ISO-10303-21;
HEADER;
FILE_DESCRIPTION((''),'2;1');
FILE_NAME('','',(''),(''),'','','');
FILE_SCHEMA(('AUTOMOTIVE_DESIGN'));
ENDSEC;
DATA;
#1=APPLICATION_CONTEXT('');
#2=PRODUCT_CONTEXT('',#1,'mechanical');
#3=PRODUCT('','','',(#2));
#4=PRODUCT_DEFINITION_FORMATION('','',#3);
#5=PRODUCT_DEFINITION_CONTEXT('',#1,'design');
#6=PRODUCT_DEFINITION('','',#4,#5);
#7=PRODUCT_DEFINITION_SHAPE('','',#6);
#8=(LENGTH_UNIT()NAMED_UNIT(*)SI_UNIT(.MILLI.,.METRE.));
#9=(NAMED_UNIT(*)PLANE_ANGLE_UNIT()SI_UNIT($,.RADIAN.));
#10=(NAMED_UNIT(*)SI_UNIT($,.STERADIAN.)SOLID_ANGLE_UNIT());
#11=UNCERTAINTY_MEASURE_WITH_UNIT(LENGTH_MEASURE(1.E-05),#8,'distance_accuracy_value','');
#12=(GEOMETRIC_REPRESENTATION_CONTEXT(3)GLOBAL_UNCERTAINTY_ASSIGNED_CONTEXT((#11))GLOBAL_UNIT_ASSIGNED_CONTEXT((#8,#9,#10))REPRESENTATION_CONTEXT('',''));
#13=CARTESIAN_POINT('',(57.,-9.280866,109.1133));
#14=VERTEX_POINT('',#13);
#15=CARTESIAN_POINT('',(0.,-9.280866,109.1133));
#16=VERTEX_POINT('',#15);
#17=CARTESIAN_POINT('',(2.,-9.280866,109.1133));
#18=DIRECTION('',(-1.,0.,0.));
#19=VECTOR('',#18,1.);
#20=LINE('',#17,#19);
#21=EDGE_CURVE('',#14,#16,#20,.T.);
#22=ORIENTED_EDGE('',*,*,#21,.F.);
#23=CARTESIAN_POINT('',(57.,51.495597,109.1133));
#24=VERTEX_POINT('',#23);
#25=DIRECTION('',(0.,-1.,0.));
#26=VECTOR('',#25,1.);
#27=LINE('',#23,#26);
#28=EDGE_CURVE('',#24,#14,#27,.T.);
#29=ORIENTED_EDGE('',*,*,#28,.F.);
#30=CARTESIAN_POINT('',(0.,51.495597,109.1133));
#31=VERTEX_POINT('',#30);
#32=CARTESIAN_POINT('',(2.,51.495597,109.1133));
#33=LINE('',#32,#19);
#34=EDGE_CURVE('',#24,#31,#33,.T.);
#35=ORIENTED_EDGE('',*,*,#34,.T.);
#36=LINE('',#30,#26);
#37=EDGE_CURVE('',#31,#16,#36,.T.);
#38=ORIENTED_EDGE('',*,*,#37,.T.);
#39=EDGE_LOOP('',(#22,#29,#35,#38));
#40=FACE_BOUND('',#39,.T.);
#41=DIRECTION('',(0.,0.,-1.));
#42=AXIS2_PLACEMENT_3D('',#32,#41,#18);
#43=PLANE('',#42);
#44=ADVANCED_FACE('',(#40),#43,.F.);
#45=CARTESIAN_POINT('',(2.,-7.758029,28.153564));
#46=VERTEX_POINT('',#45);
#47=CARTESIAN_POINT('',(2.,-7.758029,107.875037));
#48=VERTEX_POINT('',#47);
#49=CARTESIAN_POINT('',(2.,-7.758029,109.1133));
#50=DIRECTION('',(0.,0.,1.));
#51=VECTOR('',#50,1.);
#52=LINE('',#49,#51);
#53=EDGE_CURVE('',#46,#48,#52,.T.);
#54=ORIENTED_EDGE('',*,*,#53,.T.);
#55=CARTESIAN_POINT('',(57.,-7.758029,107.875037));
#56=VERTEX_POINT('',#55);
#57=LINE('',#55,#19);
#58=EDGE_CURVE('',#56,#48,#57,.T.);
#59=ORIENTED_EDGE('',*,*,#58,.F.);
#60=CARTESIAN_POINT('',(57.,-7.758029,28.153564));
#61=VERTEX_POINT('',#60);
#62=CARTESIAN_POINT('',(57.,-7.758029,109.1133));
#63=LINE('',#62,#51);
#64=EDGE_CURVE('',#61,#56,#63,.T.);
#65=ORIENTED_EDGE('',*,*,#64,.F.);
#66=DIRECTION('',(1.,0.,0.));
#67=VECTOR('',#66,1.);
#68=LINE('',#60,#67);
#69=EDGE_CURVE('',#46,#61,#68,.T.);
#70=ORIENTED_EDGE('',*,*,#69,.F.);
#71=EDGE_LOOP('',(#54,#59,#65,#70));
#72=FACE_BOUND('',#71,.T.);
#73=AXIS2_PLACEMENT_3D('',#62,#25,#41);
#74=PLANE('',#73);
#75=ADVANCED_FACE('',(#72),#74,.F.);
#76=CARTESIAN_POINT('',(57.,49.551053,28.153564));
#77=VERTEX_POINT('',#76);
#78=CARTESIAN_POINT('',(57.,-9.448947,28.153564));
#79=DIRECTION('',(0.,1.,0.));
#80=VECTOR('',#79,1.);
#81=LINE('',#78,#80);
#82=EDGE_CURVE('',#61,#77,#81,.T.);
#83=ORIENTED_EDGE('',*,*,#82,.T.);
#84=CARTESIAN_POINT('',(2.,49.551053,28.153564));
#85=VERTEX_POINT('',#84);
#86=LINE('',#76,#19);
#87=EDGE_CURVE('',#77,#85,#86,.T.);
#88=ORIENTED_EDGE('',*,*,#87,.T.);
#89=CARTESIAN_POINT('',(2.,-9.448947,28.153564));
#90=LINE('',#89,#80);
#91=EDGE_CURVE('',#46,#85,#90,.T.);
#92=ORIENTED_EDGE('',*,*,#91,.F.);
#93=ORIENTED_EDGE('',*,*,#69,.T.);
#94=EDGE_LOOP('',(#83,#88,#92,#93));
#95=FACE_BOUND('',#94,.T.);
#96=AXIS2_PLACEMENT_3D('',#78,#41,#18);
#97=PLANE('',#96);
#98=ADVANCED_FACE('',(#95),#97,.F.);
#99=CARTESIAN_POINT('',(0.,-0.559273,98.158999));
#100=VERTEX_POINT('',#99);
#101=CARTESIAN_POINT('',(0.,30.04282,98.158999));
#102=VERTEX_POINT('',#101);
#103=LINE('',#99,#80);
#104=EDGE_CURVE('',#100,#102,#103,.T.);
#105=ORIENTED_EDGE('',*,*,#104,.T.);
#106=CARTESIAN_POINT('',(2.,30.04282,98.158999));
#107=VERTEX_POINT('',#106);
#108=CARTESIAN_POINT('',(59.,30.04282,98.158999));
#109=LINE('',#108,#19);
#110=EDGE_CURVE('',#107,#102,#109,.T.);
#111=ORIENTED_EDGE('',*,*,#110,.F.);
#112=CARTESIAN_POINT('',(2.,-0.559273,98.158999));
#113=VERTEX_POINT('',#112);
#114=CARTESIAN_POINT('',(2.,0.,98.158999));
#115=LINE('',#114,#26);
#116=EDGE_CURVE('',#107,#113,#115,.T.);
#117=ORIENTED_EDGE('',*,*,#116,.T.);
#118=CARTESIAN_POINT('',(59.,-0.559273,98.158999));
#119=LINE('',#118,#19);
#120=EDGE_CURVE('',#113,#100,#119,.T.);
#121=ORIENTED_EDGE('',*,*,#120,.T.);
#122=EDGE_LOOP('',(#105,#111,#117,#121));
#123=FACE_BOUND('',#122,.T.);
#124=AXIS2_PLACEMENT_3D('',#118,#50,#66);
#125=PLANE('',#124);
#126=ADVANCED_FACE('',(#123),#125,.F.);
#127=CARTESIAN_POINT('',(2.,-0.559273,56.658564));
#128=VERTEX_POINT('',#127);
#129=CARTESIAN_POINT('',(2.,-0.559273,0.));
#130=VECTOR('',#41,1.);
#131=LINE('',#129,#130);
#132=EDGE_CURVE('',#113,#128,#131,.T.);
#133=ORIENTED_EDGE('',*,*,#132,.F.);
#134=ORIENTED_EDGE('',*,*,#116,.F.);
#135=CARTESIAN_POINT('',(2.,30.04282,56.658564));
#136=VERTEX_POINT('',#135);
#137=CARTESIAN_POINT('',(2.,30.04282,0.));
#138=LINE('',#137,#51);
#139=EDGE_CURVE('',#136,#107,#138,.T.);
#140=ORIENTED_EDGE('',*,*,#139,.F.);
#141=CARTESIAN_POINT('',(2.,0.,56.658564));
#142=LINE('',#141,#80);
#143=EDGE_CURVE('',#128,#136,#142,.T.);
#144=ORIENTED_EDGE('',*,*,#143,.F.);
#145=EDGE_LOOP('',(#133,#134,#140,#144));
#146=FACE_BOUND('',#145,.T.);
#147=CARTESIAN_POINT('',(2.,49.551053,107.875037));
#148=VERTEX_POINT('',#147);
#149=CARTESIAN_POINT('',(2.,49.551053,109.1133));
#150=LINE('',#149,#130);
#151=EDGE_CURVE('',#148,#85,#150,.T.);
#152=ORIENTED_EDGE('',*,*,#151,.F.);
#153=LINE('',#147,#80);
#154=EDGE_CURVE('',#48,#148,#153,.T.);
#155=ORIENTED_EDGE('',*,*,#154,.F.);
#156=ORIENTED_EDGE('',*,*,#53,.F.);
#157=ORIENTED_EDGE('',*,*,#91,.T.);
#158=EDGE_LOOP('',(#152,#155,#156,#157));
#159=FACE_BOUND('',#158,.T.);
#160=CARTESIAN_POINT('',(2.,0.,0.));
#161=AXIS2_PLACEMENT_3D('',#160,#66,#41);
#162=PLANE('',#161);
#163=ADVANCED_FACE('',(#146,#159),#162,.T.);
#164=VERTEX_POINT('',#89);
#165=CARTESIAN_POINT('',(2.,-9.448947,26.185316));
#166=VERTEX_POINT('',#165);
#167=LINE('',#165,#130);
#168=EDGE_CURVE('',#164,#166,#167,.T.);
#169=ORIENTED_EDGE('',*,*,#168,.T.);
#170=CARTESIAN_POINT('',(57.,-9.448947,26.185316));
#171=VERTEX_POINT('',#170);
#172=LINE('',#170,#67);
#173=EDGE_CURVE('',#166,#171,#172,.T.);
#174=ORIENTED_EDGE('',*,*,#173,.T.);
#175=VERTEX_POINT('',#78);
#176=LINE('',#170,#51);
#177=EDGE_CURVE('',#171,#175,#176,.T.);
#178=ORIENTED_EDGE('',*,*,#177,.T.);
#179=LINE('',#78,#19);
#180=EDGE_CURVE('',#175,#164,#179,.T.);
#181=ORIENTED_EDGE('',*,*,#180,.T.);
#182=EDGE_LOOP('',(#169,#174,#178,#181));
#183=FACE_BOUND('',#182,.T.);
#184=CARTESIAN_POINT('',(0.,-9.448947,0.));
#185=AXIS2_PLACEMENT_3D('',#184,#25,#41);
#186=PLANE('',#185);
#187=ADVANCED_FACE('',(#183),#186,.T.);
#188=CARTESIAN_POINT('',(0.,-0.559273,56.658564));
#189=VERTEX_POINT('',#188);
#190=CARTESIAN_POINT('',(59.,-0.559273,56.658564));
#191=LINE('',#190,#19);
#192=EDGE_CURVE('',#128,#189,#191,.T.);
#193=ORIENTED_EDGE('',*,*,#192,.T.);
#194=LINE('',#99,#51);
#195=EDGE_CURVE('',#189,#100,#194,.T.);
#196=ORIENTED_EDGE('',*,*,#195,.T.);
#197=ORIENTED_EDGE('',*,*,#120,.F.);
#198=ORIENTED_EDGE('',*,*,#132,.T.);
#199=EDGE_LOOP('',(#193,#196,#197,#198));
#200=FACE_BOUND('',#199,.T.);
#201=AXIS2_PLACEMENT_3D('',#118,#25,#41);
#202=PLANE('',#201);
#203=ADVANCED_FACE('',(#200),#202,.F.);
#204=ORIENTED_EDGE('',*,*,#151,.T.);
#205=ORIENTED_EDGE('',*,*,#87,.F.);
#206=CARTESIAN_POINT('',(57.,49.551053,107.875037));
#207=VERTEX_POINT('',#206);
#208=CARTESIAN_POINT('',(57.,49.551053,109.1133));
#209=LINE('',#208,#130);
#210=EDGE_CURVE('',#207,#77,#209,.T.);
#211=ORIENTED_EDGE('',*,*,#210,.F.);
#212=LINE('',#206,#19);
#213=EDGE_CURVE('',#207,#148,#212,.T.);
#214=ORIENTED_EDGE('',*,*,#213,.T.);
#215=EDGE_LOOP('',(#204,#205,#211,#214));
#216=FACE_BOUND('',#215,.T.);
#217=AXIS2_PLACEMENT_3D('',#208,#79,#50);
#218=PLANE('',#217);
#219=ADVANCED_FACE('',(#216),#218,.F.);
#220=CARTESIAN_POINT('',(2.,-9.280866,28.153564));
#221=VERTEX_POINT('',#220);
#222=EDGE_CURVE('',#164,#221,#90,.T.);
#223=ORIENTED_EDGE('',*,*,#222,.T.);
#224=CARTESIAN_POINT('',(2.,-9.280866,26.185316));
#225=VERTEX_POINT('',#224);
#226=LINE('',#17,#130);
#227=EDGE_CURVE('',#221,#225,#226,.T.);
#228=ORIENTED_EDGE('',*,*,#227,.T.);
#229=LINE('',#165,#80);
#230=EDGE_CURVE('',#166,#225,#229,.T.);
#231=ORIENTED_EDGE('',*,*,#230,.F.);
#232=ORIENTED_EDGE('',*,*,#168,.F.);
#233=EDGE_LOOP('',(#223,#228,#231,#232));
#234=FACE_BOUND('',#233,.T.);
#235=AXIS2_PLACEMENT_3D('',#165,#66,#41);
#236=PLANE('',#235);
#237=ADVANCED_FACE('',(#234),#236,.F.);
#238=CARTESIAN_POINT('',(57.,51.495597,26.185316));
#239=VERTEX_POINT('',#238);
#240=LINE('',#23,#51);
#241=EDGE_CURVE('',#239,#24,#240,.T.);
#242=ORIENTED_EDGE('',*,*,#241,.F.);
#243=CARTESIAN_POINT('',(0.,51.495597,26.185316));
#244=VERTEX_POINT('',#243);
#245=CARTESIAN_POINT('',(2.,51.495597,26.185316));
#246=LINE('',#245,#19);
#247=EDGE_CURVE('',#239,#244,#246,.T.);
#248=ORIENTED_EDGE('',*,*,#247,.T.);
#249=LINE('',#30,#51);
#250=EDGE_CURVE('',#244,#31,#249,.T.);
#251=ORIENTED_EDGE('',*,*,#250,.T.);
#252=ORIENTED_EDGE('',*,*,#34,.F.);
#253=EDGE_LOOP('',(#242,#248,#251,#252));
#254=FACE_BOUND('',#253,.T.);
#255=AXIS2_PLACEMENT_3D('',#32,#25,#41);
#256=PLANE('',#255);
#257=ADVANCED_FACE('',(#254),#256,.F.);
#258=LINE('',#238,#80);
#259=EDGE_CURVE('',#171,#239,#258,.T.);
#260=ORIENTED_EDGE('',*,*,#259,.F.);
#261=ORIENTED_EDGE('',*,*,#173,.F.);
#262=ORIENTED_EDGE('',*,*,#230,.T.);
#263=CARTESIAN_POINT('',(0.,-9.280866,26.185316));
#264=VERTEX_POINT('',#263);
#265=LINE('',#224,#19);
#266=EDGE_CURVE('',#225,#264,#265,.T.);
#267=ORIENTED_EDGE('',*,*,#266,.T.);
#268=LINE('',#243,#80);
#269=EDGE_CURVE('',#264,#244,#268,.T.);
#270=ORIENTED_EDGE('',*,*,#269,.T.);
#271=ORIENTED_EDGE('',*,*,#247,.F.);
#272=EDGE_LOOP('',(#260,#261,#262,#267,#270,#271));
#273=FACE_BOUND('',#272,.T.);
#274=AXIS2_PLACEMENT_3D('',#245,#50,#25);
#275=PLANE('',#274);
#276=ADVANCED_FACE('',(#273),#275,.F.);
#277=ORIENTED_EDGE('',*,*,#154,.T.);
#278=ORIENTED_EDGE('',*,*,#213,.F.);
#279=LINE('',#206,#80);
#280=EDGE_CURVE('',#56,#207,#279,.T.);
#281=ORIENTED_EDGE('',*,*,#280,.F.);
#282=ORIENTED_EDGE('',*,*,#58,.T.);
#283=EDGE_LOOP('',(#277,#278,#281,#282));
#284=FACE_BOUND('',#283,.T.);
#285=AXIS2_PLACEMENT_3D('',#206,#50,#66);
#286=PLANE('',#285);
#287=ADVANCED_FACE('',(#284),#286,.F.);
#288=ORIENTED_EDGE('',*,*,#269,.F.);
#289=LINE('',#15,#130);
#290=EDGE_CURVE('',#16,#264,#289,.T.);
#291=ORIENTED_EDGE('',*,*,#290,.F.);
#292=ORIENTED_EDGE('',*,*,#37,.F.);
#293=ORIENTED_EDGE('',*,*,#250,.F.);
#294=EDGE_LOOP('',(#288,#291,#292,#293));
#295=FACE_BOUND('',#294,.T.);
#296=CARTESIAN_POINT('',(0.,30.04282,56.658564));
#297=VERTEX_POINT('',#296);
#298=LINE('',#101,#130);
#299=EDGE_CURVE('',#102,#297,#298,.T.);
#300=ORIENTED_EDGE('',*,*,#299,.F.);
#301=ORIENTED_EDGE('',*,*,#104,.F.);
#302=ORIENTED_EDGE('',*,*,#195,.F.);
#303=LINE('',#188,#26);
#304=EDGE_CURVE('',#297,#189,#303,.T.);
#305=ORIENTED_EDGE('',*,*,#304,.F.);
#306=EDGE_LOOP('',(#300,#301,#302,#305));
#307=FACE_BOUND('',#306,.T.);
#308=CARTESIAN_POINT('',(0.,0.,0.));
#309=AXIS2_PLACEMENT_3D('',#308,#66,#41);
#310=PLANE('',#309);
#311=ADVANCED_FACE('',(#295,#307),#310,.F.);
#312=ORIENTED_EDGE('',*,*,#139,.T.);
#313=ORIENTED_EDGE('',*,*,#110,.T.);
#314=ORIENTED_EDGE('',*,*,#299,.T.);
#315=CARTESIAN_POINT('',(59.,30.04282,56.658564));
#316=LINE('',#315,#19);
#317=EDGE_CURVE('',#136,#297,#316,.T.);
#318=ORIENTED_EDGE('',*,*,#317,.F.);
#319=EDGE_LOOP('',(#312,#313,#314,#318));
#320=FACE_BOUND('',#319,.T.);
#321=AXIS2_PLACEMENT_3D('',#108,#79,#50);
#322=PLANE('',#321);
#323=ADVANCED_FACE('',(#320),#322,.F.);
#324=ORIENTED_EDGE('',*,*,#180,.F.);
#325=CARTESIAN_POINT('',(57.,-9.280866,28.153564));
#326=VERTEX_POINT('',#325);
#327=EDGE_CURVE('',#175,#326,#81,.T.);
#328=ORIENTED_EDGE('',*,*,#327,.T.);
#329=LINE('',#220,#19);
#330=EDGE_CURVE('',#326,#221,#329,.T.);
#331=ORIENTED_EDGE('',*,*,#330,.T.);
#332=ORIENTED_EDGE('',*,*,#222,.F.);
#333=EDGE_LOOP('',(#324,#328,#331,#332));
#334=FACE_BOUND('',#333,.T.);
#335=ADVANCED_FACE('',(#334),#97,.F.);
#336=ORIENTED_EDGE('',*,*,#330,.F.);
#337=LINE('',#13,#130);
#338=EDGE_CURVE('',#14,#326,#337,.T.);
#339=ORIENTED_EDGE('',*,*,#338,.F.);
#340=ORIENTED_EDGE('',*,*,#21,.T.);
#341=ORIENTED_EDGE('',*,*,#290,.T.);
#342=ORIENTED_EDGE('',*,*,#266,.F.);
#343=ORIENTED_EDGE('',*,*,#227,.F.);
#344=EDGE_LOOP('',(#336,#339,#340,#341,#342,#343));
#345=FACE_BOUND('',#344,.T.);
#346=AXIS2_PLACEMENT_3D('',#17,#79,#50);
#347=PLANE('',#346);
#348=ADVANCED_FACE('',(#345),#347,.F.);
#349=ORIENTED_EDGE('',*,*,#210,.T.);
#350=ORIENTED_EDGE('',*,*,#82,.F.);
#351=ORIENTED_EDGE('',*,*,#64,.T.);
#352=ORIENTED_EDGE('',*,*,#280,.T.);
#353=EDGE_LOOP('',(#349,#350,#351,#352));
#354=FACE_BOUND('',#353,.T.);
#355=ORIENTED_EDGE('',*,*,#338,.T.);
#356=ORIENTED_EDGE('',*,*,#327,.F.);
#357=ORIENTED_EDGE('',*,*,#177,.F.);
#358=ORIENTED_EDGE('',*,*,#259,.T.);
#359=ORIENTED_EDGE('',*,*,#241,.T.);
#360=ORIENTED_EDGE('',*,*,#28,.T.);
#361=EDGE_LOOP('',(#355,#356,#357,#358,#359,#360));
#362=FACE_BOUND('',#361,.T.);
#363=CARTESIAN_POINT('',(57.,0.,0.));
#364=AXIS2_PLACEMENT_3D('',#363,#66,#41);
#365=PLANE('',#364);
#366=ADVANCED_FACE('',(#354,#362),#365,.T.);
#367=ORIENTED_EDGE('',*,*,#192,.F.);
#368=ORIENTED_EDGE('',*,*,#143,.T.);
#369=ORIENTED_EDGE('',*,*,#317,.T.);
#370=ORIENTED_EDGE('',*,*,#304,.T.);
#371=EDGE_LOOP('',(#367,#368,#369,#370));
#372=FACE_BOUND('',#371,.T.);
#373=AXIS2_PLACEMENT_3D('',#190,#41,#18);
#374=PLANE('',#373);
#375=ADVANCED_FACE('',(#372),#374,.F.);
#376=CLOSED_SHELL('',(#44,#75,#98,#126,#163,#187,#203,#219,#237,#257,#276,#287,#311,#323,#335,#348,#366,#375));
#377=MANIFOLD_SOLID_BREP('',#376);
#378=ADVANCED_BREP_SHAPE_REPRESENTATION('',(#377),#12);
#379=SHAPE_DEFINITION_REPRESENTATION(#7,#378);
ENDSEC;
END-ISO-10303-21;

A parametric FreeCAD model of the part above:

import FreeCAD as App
import Part
import Sketcher

V = App.Vector
Q = App.Units.Quantity


def add_polygon(sketch, points):
    """Adds a closed chain of lines whose ends are joined by coincident constraints."""
    first, n = sketch.GeometryCount, len(points)
    for a, b in zip(points, points[1:] + points[:1]):
        sketch.addGeometry(Part.LineSegment(App.Vector(*a, 0), App.Vector(*b, 0)), False)
    for i in range(n):
        sketch.addConstraint(Sketcher.Constraint("Coincident", first + i, 2, first + (i + 1) % n, 1))

doc = App.newDocument("Part")
body = doc.addObject("PartDesign::Body", "Body")

sketch1 = doc.addObject("Sketcher::SketchObject", "Sketch")
body.addObject(sketch1)
sketch1.AttachmentSupport = (doc.YZ_Plane, [""])
sketch1.MapMode = "FlatFace"
add_polygon(sketch1, [(51, 109), (-9, 109), (-9, 26), (51, 26)])
sketch1.addConstraint([
    Sketcher.Constraint("Horizontal", 0),
    Sketcher.Constraint("Vertical", 1),
    Sketcher.Constraint("Horizontal", 2),
    Sketcher.Constraint("Vertical", 3),
    Sketcher.Constraint("DistanceY", -1, 1, 0, 2, Q("109.1133 mm")),
    Sketcher.Constraint("DistanceX", 0, 2, 0, 1, Q("60.776463 mm")),
    Sketcher.Constraint("DistanceY", 1, 2, 1, 1, Q("82.927984 mm")),
    Sketcher.Constraint("DistanceX", 0, 2, -1, 1, Q("9.280866 mm")),
])
pad1 = doc.addObject("PartDesign::Pad", "Pad")
body.addObject(pad1)
pad1.Profile = sketch1
pad1.Length = 2

sketch2 = doc.addObject("Sketcher::SketchObject", "Sketch001")
body.addObject(sketch2)
sketch2.AttachmentSupport = (doc.YZ_Plane, [""])
sketch2.MapMode = "FlatFace"
sketch2.AttachmentOffset = App.Placement(V(0, 0, 2), App.Rotation())
add_polygon(sketch2, [(51.5, 109.1), (49.6, 109.1), (49.6, 26.2), (51.5, 26.2)])
sketch2.addConstraint([
    Sketcher.Constraint("Horizontal", 0),
    Sketcher.Constraint("Vertical", 1),
    Sketcher.Constraint("Horizontal", 2),
    Sketcher.Constraint("Vertical", 3),
    Sketcher.Constraint("DistanceY", -1, 1, 0, 2, Q("109.1133 mm")),
    Sketcher.Constraint("DistanceX", 0, 2, 0, 1, Q("1.944544 mm")),
    Sketcher.Constraint("DistanceY", 1, 2, 1, 1, Q("82.927984 mm")),
    Sketcher.Constraint("DistanceX", -1, 1, 0, 2, Q("49.551053 mm")),
])
pad2 = doc.addObject("PartDesign::Pad", "Pad001")
body.addObject(pad2)
pad2.Profile = sketch2
pad2.Length = 55

sketch3 = doc.addObject("Sketcher::SketchObject", "Sketch002")
body.addObject(sketch3)
sketch3.AttachmentSupport = (doc.YZ_Plane, [""])
sketch3.MapMode = "FlatFace"
sketch3.AttachmentOffset = App.Placement(V(0, 0, 2), App.Rotation())
add_polygon(sketch3, [(-7.8, 109.1), (-9.3, 109.1), (-9.3, 26.2), (-7.8, 26.2)])
sketch3.addConstraint([
    Sketcher.Constraint("Horizontal", 0),
    Sketcher.Constraint("Vertical", 1),
    Sketcher.Constraint("Horizontal", 2),
    Sketcher.Constraint("Vertical", 3),
    Sketcher.Constraint("DistanceY", -1, 1, 0, 2, Q("109.1133 mm")),
    Sketcher.Constraint("DistanceX", 0, 2, 0, 1, Q("1.522837 mm")),
    Sketcher.Constraint("DistanceY", 1, 2, 1, 1, Q("82.927984 mm")),
    Sketcher.Constraint("DistanceX", 2, 2, -1, 1, Q("7.758029 mm")),
])
pad3 = doc.addObject("PartDesign::Pad", "Pad002")
body.addObject(pad3)
pad3.Profile = sketch3
pad3.Length = 55

sketch4 = doc.addObject("Sketcher::SketchObject", "Sketch003")
body.addObject(sketch4)
sketch4.AttachmentSupport = (doc.YZ_Plane, [""])
sketch4.MapMode = "FlatFace"
sketch4.AttachmentOffset = App.Placement(V(0, 0, 2), App.Rotation())
add_polygon(sketch4, [(49.6, 109.1), (-7.8, 109.1), (-7.8, 107.9), (49.6, 107.9)])
sketch4.addConstraint([
    Sketcher.Constraint("Horizontal", 0),
    Sketcher.Constraint("Vertical", 1),
    Sketcher.Constraint("Horizontal", 2),
    Sketcher.Constraint("Vertical", 3),
    Sketcher.Constraint("DistanceX", 0, 2, 0, 1, Q("57.309081 mm")),
    Sketcher.Constraint("DistanceY", -1, 1, 0, 2, Q("109.1133 mm")),
    Sketcher.Constraint("DistanceY", 1, 2, 1, 1, Q("1.238264 mm")),
    Sketcher.Constraint("DistanceX", 0, 2, -1, 1, Q("7.758029 mm")),
])
pad4 = doc.addObject("PartDesign::Pad", "Pad003")
body.addObject(pad4)
pad4.Profile = sketch4
pad4.Length = 55

sketch5 = doc.addObject("Sketcher::SketchObject", "Sketch004")
body.addObject(sketch5)
sketch5.AttachmentSupport = (doc.XZ_Plane, [""])
sketch5.MapMode = "FlatFace"
sketch5.AttachmentOffset = App.Placement(V(0, 0, -49.551053), App.Rotation())
add_polygon(sketch5, [(57, 26.2), (57, 28.2), (2, 28.2), (2, 26.2)])
sketch5.addConstraint([
    Sketcher.Constraint("Vertical", 0),
    Sketcher.Constraint("Horizontal", 1),
    Sketcher.Constraint("Vertical", 2),
    Sketcher.Constraint("Horizontal", 3),
    Sketcher.Constraint("DistanceX", 1, 2, 1, 1, Q("55 mm")),
    Sketcher.Constraint("DistanceX", -1, 1, 0, 2, Q("57 mm")),
    Sketcher.Constraint("DistanceY", 0, 1, 0, 2, Q("1.968248 mm")),
    Sketcher.Constraint("DistanceY", -1, 1, 0, 2, Q("28.153564 mm")),
])
pad5 = doc.addObject("PartDesign::Pad", "Pad004")
body.addObject(pad5)
pad5.Profile = sketch5
pad5.Length = 59

sketch6 = doc.addObject("Sketcher::SketchObject", "Sketch005")
body.addObject(sketch6)
sketch6.AttachmentSupport = (doc.YZ_Plane, [""])
sketch6.MapMode = "FlatFace"
add_polygon(sketch6, [(30, 57), (-1, 57), (-1, 98), (30, 98)])
sketch6.addConstraint([
    Sketcher.Constraint("Horizontal", 0),
    Sketcher.Constraint("Vertical", 1),
    Sketcher.Constraint("Horizontal", 2),
    Sketcher.Constraint("Vertical", 3),
    Sketcher.Constraint("DistanceY", -1, 1, 1, 2, Q("98.158999 mm")),
    Sketcher.Constraint("DistanceX", 0, 2, 0, 1, Q("30.602093 mm")),
    Sketcher.Constraint("DistanceY", 1, 1, 1, 2, Q("41.500435 mm")),
    Sketcher.Constraint("DistanceX", -1, 1, 2, 2, Q("30.04282 mm")),
])
pocket1 = doc.addObject("PartDesign::Pocket", "Pocket")
body.addObject(pocket1)
pocket1.Profile = sketch6
pocket1.Length = 59
pocket1.Reversed = True

doc.recompute()
